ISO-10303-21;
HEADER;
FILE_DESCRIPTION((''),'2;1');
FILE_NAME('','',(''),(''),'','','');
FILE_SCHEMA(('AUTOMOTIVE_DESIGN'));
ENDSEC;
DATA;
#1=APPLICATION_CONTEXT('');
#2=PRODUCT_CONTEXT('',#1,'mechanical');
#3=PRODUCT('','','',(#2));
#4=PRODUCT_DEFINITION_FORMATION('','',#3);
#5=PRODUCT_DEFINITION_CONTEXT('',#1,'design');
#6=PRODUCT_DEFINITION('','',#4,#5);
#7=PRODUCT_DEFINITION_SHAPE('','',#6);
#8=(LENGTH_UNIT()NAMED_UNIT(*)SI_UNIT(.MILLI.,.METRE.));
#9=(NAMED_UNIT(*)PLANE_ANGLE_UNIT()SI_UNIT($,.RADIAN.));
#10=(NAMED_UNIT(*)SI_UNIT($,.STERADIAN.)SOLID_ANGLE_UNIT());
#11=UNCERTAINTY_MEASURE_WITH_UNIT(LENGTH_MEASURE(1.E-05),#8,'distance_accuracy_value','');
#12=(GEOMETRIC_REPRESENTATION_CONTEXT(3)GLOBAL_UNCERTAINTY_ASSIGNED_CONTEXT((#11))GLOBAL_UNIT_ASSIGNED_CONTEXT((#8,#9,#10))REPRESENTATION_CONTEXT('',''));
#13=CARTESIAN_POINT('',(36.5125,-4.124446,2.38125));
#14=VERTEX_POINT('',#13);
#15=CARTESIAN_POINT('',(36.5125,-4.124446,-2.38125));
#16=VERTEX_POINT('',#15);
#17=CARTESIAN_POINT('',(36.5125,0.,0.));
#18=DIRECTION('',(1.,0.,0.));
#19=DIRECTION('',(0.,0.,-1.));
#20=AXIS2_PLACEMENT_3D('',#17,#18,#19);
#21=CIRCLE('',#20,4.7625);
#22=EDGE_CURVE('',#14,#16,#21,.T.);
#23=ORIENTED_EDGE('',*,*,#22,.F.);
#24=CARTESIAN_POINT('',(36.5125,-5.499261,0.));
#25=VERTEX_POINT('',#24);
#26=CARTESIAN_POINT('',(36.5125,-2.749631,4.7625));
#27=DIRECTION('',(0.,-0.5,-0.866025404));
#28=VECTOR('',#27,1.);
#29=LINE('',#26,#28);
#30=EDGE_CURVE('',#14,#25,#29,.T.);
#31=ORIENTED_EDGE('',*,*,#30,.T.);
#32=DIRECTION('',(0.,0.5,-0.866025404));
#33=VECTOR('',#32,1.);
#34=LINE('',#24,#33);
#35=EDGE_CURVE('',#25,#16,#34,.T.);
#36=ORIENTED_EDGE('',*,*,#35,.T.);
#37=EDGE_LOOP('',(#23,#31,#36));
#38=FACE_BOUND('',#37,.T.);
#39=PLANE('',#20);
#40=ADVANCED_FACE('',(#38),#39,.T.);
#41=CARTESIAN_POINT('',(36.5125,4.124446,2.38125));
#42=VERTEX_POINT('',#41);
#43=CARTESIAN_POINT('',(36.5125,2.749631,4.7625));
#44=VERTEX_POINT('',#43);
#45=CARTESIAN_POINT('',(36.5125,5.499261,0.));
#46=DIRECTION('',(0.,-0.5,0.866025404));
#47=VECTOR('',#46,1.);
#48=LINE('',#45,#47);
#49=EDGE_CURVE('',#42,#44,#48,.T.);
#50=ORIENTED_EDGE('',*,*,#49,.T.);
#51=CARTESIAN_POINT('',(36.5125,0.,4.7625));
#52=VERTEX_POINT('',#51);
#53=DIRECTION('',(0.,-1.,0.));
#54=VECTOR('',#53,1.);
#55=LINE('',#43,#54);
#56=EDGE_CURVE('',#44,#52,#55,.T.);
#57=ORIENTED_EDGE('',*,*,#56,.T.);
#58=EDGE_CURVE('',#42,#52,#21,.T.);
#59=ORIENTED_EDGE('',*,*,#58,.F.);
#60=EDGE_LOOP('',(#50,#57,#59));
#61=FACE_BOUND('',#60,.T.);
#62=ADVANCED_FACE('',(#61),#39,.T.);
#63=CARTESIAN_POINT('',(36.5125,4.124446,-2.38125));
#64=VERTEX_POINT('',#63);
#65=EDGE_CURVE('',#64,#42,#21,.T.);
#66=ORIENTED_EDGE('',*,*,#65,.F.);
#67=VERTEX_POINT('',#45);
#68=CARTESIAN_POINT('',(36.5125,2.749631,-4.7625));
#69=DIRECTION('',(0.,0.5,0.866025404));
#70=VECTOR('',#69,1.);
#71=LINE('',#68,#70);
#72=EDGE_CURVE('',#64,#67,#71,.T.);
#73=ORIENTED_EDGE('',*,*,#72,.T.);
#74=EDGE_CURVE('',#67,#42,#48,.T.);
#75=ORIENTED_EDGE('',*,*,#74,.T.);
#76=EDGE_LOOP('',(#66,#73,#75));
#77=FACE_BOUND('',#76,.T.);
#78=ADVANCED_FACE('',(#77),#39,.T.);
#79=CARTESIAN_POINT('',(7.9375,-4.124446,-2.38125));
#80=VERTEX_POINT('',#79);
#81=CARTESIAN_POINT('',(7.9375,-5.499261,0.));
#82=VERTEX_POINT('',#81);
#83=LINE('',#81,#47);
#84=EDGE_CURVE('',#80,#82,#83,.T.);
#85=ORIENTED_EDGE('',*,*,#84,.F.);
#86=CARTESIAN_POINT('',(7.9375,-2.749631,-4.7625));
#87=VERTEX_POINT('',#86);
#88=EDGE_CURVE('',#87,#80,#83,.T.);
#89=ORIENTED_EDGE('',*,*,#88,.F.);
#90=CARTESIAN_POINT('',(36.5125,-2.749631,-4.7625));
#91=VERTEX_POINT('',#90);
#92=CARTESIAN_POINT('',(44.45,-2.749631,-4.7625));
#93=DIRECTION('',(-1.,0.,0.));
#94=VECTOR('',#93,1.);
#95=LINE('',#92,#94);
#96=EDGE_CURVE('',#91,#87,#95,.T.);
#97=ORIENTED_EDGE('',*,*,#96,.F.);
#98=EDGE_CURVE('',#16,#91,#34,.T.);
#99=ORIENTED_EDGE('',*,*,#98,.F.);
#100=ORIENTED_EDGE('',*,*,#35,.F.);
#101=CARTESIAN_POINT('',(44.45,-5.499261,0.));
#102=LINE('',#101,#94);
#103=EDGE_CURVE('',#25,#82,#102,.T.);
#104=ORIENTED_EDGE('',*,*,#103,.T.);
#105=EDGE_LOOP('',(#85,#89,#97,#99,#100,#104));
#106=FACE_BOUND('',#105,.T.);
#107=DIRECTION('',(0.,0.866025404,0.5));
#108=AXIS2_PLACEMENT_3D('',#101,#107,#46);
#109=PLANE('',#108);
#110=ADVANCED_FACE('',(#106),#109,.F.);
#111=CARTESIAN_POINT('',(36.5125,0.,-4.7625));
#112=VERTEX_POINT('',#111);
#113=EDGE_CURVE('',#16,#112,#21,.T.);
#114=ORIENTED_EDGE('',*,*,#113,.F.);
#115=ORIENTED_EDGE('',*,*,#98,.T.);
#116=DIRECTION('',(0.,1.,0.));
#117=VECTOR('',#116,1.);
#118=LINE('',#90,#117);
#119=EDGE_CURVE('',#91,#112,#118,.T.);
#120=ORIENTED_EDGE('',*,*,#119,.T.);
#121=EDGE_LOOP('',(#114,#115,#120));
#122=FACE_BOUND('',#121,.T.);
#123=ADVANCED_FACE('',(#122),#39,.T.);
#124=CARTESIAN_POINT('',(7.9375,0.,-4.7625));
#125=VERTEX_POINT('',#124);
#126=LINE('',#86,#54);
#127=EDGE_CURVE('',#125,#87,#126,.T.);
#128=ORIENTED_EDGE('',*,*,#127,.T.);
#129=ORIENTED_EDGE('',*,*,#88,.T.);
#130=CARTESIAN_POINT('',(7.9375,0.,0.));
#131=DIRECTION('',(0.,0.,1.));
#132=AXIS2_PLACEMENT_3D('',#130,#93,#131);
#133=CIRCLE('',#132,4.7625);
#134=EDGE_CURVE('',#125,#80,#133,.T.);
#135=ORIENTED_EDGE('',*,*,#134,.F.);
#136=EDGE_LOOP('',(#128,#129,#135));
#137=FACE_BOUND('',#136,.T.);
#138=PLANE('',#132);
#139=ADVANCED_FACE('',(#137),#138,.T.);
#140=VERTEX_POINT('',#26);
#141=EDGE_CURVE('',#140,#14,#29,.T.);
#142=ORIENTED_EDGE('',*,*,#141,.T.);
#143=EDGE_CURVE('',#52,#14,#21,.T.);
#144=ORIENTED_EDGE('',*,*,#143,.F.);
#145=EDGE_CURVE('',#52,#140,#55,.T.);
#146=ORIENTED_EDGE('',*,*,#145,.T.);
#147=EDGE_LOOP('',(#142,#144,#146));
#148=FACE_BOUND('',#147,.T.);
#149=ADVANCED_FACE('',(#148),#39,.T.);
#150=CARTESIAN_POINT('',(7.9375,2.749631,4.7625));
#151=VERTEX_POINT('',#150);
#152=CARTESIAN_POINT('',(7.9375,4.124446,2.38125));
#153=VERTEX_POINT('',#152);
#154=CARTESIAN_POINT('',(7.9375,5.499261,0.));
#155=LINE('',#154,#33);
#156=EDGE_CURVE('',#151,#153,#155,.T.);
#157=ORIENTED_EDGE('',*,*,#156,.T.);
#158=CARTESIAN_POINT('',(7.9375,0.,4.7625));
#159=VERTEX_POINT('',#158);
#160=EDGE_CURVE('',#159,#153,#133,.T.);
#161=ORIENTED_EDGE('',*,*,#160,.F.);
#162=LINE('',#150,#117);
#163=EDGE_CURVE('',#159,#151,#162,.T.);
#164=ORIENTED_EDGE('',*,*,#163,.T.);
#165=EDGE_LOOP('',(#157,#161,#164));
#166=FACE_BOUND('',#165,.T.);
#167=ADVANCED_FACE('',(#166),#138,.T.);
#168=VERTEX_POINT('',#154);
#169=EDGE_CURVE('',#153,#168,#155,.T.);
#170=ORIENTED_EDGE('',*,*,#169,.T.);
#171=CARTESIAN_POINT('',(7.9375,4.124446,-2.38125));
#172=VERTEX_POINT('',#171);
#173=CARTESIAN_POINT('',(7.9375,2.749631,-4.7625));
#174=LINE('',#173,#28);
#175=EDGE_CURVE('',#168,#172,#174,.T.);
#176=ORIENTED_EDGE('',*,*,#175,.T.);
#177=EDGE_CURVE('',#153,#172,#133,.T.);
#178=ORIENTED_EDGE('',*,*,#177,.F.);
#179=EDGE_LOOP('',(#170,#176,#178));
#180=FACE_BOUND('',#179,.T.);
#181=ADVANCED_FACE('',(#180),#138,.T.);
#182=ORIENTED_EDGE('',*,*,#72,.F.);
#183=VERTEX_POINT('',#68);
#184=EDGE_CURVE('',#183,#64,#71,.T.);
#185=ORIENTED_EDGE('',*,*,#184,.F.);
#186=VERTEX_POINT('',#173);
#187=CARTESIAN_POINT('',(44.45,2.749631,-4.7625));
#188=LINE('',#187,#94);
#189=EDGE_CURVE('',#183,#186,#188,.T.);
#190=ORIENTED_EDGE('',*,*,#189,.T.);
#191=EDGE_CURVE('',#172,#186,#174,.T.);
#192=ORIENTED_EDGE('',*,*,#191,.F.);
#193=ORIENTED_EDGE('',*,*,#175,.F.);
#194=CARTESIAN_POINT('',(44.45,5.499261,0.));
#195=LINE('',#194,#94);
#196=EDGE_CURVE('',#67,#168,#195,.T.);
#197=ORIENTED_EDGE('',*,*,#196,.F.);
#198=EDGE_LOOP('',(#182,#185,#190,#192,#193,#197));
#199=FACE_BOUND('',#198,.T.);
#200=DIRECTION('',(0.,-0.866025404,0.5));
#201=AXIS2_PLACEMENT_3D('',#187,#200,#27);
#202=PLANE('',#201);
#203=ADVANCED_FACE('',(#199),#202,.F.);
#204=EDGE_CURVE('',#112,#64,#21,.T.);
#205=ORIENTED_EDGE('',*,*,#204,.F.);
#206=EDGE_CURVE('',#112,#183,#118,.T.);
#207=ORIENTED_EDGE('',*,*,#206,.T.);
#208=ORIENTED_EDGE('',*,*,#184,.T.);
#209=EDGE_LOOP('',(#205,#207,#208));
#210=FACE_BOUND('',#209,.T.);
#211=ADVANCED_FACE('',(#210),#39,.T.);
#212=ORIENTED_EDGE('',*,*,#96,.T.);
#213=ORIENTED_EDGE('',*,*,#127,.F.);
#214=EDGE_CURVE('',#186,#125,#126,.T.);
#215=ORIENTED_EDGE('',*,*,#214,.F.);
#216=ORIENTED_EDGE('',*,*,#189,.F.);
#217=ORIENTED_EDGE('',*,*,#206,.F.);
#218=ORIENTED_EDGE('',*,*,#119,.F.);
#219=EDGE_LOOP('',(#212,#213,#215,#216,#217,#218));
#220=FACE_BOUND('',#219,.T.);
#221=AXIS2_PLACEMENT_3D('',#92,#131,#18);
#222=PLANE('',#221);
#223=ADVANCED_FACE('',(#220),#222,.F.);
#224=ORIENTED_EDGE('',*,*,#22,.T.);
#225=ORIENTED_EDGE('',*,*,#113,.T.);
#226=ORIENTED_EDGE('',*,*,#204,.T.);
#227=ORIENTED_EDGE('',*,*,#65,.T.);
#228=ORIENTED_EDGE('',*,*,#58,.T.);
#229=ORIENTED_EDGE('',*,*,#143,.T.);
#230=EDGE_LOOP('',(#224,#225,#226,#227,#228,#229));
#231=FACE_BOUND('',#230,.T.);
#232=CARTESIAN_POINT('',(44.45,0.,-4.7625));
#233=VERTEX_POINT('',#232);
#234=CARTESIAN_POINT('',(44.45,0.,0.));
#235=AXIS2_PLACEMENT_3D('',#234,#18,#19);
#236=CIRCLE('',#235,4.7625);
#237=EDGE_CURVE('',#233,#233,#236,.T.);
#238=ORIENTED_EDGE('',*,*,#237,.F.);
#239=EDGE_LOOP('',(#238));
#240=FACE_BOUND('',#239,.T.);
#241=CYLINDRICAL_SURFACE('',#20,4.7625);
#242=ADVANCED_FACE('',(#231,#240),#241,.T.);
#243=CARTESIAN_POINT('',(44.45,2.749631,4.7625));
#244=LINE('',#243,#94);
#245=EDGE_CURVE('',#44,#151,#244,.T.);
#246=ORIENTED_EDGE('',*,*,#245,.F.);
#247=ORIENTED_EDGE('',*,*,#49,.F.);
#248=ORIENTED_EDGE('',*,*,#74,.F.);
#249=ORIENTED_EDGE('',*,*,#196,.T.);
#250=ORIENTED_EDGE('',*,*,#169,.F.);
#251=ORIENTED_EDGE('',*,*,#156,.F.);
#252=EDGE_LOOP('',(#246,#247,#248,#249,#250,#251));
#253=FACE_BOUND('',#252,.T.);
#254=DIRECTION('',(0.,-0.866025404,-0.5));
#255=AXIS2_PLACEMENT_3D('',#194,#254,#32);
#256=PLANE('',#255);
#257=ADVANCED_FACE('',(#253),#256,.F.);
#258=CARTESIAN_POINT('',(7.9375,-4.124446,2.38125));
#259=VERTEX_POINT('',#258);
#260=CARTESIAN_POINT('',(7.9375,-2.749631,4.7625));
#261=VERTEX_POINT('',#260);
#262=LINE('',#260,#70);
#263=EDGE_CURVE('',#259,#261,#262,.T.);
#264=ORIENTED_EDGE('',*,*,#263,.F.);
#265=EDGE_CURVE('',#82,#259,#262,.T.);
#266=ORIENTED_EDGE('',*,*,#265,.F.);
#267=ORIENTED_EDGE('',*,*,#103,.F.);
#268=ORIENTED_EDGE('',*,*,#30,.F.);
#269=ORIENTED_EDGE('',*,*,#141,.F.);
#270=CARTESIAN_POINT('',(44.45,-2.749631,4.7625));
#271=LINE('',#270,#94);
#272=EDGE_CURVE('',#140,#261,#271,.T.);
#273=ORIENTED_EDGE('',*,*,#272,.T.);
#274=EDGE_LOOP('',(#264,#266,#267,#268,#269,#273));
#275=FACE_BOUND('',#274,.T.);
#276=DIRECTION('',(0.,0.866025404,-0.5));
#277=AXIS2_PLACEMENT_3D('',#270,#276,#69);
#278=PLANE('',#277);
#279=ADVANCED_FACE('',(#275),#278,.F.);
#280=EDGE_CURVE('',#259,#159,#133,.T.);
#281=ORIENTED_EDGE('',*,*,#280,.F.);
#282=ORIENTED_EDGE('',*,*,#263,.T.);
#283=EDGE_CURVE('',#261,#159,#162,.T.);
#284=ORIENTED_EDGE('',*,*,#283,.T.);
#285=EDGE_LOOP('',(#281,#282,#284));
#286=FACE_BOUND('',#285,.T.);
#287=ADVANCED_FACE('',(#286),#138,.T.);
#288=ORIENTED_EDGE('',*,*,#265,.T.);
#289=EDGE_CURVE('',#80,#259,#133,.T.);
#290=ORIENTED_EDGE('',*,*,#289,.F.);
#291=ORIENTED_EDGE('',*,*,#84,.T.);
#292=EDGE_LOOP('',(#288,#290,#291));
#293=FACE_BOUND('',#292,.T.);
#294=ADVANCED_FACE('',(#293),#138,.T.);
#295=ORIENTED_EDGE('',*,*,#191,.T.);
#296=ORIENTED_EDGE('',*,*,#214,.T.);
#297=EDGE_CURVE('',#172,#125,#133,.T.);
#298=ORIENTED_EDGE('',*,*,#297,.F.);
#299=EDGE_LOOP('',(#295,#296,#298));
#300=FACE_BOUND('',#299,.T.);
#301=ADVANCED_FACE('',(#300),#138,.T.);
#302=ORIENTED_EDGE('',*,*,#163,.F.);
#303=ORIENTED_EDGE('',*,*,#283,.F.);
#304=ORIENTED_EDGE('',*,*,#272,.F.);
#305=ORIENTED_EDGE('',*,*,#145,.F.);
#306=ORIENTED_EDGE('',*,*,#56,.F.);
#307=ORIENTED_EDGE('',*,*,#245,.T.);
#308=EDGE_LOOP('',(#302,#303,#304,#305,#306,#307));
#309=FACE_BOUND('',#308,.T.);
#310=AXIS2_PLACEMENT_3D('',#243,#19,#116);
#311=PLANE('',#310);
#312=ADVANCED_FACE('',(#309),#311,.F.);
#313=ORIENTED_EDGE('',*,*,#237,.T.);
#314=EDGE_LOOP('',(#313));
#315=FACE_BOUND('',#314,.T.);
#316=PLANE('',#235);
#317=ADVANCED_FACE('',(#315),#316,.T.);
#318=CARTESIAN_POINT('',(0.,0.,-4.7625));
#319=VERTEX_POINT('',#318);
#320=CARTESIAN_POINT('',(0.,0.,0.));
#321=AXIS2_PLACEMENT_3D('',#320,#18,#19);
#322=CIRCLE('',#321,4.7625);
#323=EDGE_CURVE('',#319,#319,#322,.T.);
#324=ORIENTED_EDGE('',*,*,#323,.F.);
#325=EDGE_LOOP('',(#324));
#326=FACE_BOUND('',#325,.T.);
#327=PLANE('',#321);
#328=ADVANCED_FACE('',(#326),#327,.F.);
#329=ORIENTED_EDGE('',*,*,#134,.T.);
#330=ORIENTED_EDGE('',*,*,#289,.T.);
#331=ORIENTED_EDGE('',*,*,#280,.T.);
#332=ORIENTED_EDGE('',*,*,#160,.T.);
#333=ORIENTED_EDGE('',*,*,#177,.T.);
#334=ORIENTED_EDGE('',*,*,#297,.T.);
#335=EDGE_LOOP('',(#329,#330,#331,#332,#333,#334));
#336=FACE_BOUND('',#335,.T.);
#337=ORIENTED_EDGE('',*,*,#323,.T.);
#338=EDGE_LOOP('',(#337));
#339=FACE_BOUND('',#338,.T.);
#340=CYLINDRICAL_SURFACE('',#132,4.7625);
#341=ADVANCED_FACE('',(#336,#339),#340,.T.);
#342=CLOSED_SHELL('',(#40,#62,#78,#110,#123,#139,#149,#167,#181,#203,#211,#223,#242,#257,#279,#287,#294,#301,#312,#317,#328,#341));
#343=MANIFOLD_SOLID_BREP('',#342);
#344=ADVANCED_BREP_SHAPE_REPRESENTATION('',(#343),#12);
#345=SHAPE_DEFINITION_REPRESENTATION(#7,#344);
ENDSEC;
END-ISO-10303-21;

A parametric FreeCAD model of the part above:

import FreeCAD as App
import Part
import Sketcher

V = App.Vector
Q = App.Units.Quantity


def add_polygon(sketch, points):
    """Adds a closed chain of lines whose ends are joined by coincident constraints."""
    first, n = sketch.GeometryCount, len(points)
    for a, b in zip(points, points[1:] + points[:1]):
        sketch.addGeometry(Part.LineSegment(App.Vector(*a, 0), App.Vector(*b, 0)), False)
    for i in range(n):
        sketch.addConstraint(Sketcher.Constraint("Coincident", first + i, 2, first + (i + 1) % n, 1))

doc = App.newDocument("Part")
params = doc.addObject("Spreadsheet::Sheet", "Params")
for row, (alias, value) in enumerate([
    ("pad1_length", "1.75 in"),
    ("sketch2_diameter", "0.375 in"),
    ("pocket1_length", "0.3125 in"),
    ("sketch3_diameter", "0.375 in"),
    ("pocket2_length", "0.3125 in"),
], start=1):
    params.set(f"A{row}", alias)
    params.set(f"B{row}", "=" + value)
    params.setAlias(f"B{row}", alias)

body = doc.addObject("PartDesign::Body", "Body")

# Sketch on YZ plane
sketch1 = body.newObject("Sketcher::SketchObject", "Sketch")
sketch1.AttachmentSupport = (doc.getObject("YZ_Plane"), [""])
sketch1.MapMode = "FlatFace"
add_polygon(sketch1, [(5.499261, 0), (2.749631, 4.7625), (-2.749631, 4.7625), (-5.499261, 0), (-2.749631, -4.7625), (2.749631, -4.7625)])  # lines 0-5
sketch1.addConstraint([
    Sketcher.Constraint("Horizontal", 1),
    Sketcher.Constraint("Horizontal", 4),
    Sketcher.Constraint("Symmetric", 0, 2, 3, 2, -1, 1),
    Sketcher.Constraint("Symmetric", 2, 2, 5, 2, -1, 1),
    Sketcher.Constraint("PointOnObject", 2, 2, -1),
    Sketcher.Constraint("Parallel", 2, 5),
    Sketcher.Constraint("Vertical", 1, 2, 3, 2),
    Sketcher.Constraint("Angle", 0, Q("120 deg")),
    Sketcher.Constraint("DistanceY", -1, 1, 0, 2, Q("0.1875 in")),
    Sketcher.Constraint("DistanceX", 1, 2, 1, 1, Q("5.499261 mm")),
])
pad1 = body.newObject("PartDesign::Pad", "Pad")
pad1.Profile = sketch1
pad1.setExpression("Length", "Params.pad1_length")

# Sketch on YZ plane
sketch2 = body.newObject("Sketcher::SketchObject", "Sketch001")
sketch2.AttachmentSupport = (doc.getObject("YZ_Plane"), [""])
sketch2.MapMode = "FlatFace"
sketch2.addGeometry([
    Part.Circle(V(0, 0, 0), V(0, 0, 1), 5.499261),
    Part.Circle(V(0, 0, 0), V(0, 0, 1), 4.7625),
], False)
sketch2.addConstraint([
    Sketcher.Constraint("Coincident", 0, 3, -1, 1),
    Sketcher.Constraint("Coincident", 1, 3, -1, 1),
    Sketcher.Constraint("Diameter", 1, Q("0.375 in")),
    Sketcher.Constraint("Diameter", 0, Q("10.998523 mm")),
])
sketch2.setExpression("Constraints[2]", "Params.sketch2_diameter")
pocket1 = body.newObject("PartDesign::Pocket", "Pocket")
pocket1.Profile = sketch2
pocket1.setExpression("Length", "Params.pocket1_length")
pocket1.Reversed = True

# Sketch on YZ plane
sketch3 = body.newObject("Sketcher::SketchObject", "Sketch002")
sketch3.AttachmentSupport = (doc.getObject("YZ_Plane"), [""])
sketch3.MapMode = "FlatFace"
sketch3.AttachmentOffset = App.Placement(V(0, 0, 1.75 * 25.4), App.Rotation())
sketch3.addGeometry([
    Part.Circle(V(0, 0, 0), V(0, 0, 1), 5.499261),
    Part.Circle(V(0, 0, 0), V(0, 0, 1), 4.7625),
], False)
sketch3.addConstraint([
    Sketcher.Constraint("Coincident", 0, 3, -1, 1),
    Sketcher.Constraint("Coincident", 1, 3, -1, 1),
    Sketcher.Constraint("Diameter", 1, Q("0.375 in")),
    Sketcher.Constraint("Diameter", 0, Q("10.998523 mm")),
])
sketch3.setExpression("Constraints[2]", "Params.sketch3_diameter")
pocket2 = body.newObject("PartDesign::Pocket", "Pocket001")
pocket2.Profile = sketch3
pocket2.setExpression("Length", "Params.pocket2_length")

doc.recompute()
